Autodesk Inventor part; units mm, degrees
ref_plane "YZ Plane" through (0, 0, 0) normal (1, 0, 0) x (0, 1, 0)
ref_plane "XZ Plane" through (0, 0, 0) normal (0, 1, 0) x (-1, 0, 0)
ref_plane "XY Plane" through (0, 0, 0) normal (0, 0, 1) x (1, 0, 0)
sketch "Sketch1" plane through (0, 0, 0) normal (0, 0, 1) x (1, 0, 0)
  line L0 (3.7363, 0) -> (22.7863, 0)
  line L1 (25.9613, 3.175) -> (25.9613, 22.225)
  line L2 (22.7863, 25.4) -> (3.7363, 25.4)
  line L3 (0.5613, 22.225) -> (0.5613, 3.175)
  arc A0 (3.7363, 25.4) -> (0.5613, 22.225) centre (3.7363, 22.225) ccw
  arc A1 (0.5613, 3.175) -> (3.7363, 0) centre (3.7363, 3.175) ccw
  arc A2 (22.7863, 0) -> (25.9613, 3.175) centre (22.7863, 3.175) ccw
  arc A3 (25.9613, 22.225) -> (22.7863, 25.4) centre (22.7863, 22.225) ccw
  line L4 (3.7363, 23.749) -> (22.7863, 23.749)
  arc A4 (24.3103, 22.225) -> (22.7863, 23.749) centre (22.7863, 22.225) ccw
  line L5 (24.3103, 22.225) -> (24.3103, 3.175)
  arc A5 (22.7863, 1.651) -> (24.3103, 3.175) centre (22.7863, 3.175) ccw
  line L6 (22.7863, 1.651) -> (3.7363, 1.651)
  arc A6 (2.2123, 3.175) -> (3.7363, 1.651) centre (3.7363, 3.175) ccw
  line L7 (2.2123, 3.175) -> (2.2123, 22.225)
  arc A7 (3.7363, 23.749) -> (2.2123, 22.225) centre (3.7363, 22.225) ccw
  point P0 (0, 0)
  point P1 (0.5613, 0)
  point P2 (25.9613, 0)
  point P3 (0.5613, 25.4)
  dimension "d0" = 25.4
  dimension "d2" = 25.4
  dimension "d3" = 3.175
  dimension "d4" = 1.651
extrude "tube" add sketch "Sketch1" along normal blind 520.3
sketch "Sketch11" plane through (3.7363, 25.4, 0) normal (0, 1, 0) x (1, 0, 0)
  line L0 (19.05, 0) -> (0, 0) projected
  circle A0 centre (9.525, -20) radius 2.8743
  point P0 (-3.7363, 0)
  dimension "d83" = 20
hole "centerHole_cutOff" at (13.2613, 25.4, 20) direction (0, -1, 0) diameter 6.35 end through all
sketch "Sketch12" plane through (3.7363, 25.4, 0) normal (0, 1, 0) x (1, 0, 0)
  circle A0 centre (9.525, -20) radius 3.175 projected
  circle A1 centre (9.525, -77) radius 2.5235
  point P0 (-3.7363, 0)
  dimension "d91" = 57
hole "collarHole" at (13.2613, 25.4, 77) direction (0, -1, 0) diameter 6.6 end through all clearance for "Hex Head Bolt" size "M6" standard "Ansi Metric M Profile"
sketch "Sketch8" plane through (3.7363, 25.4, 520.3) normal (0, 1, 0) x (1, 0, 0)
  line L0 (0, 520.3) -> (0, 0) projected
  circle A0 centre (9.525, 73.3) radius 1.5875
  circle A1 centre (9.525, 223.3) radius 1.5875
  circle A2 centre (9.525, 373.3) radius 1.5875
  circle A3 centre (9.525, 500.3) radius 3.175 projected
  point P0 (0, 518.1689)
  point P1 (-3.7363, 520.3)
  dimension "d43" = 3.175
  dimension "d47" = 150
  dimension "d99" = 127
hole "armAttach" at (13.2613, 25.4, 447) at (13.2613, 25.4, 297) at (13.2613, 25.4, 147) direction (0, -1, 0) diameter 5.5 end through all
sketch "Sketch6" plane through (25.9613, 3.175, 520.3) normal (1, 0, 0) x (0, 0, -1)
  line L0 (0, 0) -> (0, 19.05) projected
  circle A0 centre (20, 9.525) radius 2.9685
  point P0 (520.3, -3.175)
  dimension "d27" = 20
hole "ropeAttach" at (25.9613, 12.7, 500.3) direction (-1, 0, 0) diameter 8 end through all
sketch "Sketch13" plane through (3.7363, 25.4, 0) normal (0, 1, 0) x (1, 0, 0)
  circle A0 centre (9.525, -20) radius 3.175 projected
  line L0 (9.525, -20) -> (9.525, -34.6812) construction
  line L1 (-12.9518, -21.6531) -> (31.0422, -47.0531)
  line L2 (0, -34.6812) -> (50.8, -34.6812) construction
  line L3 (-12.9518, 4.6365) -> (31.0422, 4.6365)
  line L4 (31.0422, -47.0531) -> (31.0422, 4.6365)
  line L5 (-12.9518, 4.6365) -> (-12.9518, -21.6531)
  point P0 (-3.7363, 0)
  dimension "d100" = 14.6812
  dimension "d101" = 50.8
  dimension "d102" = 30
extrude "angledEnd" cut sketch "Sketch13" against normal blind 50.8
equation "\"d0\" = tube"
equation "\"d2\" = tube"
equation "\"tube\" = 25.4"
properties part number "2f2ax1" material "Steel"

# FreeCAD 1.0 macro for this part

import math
import FreeCAD as App
import Part
import Sketcher
from FreeCAD import Vector
Q = App.Units.Quantity


def add_polygon(sketch, points):
    """Adds a closed chain of lines whose ends are joined by coincident constraints."""
    first, n = sketch.GeometryCount, len(points)
    for a, b in zip(points, points[1:] + points[:1]):
        sketch.addGeometry(Part.LineSegment(App.Vector(*a, 0), App.Vector(*b, 0)), False)
    for i in range(n):
        sketch.addConstraint(Sketcher.Constraint("Coincident", first + i, 2, first + (i + 1) % n, 1))

doc = App.newDocument("Part")
body = doc.addObject("PartDesign::Body", "Body")

# Sketch on XY plane
sketch1 = body.newObject("Sketcher::SketchObject", "Sketch")
sketch1.AttachmentSupport = (doc.getObject("XY_Plane"), [""])
sketch1.MapMode = "FlatFace"
sketch1.addGeometry(Part.ArcOfCircle(Part.Circle(Vector(3.7, 3.2, 0), Vector(0, 0, 1), 3.2), math.radians(180), math.radians(270)), False)
sketch1.addGeometry(Part.LineSegment(Vector(3.7, 0, 0), Vector(22.8, 0, 0)), False)
sketch1.addGeometry(Part.ArcOfCircle(Part.Circle(Vector(22.8, 3.2, 0), Vector(0, 0, 1), 3.2), math.radians(-90), math.radians(0)), False)
sketch1.addGeometry(Part.LineSegment(Vector(26, 3.2, 0), Vector(26, 22.2, 0)), False)
sketch1.addGeometry(Part.ArcOfCircle(Part.Circle(Vector(22.8, 22.2, 0), Vector(0, 0, 1), 3.2), math.radians(0), math.radians(90)), False)
sketch1.addGeometry(Part.LineSegment(Vector(22.8, 25.4, 0), Vector(3.7, 25.4, 0)), False)
sketch1.addGeometry(Part.ArcOfCircle(Part.Circle(Vector(3.7, 22.2, 0), Vector(0, 0, 1), 3.2), math.radians(90), math.radians(180)), False)
sketch1.addGeometry(Part.LineSegment(Vector(0.6, 22.2, 0), Vector(0.6, 3.2, 0)), False)
sketch1.addGeometry(Part.ArcOfCircle(Part.Circle(Vector(3.7, 22.2, 0), Vector(0, 0, 1), 1.5), math.radians(90), math.radians(180)), False)
sketch1.addGeometry(Part.LineSegment(Vector(3.7, 23.7, 0), Vector(22.8, 23.7, 0)), False)
sketch1.addGeometry(Part.ArcOfCircle(Part.Circle(Vector(22.8, 22.2, 0), Vector(0, 0, 1), 1.5), math.radians(0), math.radians(90)), False)
sketch1.addGeometry(Part.LineSegment(Vector(24.3, 22.2, 0), Vector(24.3, 3.2, 0)), False)
sketch1.addGeometry(Part.ArcOfCircle(Part.Circle(Vector(22.8, 3.2, 0), Vector(0, 0, 1), 1.5), math.radians(-90), math.radians(0)), False)
sketch1.addGeometry(Part.LineSegment(Vector(22.8, 1.7, 0), Vector(3.7, 1.7, 0)), False)
sketch1.addGeometry(Part.ArcOfCircle(Part.Circle(Vector(3.7, 3.2, 0), Vector(0, 0, 1), 1.5), math.radians(180), math.radians(270)), False)
sketch1.addGeometry(Part.LineSegment(Vector(2.2, 3.2, 0), Vector(2.2, 22.2, 0)), False)
sketch1.addConstraint(Sketcher.Constraint("Tangent", 0, 2, 1, 1))
sketch1.addConstraint(Sketcher.Constraint("Tangent", 1, 2, 2, 1))
sketch1.addConstraint(Sketcher.Constraint("Tangent", 2, 2, 3, 1))
sketch1.addConstraint(Sketcher.Constraint("Tangent", 3, 2, 4, 1))
sketch1.addConstraint(Sketcher.Constraint("Tangent", 4, 2, 5, 1))
sketch1.addConstraint(Sketcher.Constraint("Tangent", 5, 2, 6, 1))
sketch1.addConstraint(Sketcher.Constraint("Tangent", 6, 2, 7, 1))
sketch1.addConstraint(Sketcher.Constraint("Tangent", 7, 2, 0, 1))
sketch1.addConstraint(Sketcher.Constraint("Tangent", 8, 1, 9, 1))
sketch1.addConstraint(Sketcher.Constraint("Tangent", 9, 2, 10, 2))
sketch1.addConstraint(Sketcher.Constraint("Tangent", 10, 1, 11, 1))
sketch1.addConstraint(Sketcher.Constraint("Tangent", 11, 2, 12, 2))
sketch1.addConstraint(Sketcher.Constraint("Tangent", 12, 1, 13, 1))
sketch1.addConstraint(Sketcher.Constraint("Tangent", 13, 2, 14, 2))
sketch1.addConstraint(Sketcher.Constraint("Tangent", 14, 1, 15, 1))
sketch1.addConstraint(Sketcher.Constraint("Tangent", 15, 2, 8, 2))
sketch1.addConstraint(Sketcher.Constraint("Horizontal", 1))
sketch1.addConstraint(Sketcher.Constraint("Vertical", 3))
sketch1.addConstraint(Sketcher.Constraint("Horizontal", 5))
sketch1.addConstraint(Sketcher.Constraint("Vertical", 7))
sketch1.addConstraint(Sketcher.Constraint("Horizontal", 9))
sketch1.addConstraint(Sketcher.Constraint("Vertical", 11))
sketch1.addConstraint(Sketcher.Constraint("Horizontal", 13))
sketch1.addConstraint(Sketcher.Constraint("Vertical", 15))
sketch1.addConstraint(Sketcher.Constraint("Coincident", 8, 3, 6, 3))
sketch1.addConstraint(Sketcher.Constraint("Coincident", 10, 3, 4, 3))
sketch1.addConstraint(Sketcher.Constraint("Coincident", 12, 3, 2, 3))
sketch1.addConstraint(Sketcher.Constraint("Equal", 0, 2))
sketch1.addConstraint(Sketcher.Constraint("Equal", 2, 4))
sketch1.addConstraint(Sketcher.Constraint("Equal", 4, 6))
sketch1.addConstraint(Sketcher.Constraint("Equal", 12, 14))
sketch1.addConstraint(Sketcher.Constraint("PointOnObject", 0, 2, -1))
sketch1.addConstraint(Sketcher.Constraint("Equal", 13, 3))
sketch1.addConstraint(Sketcher.Constraint("DistanceY", -1, 1, 4, 2, Q("1 in")))
sketch1.addConstraint(Sketcher.Constraint("Radius", 0, Q("0.125 in")))
sketch1.addConstraint(Sketcher.Constraint("Radius", 8, Q("0.06 in")))
sketch1.addConstraint(Sketcher.Constraint("DistanceX", -1, 1, 0, 3, Q("0.1471 in")))
pad1 = body.newObject("PartDesign::Pad", "Pad")
pad1.Profile = sketch1
pad1.Length = 520.3

# Sketch on XZ plane
sketch2 = body.newObject("Sketcher::SketchObject", "Sketch001")
sketch2.AttachmentSupport = (doc.getObject("XZ_Plane"), [""])
sketch2.MapMode = "FlatFace"
sketch2.AttachmentOffset = App.Placement(Vector(0, 0, -1 * 25.4), App.Rotation())
sketch2.addGeometry(Part.Circle(Vector(13.3, 20, 0), Vector(0, 0, 1), 3.2), False)
sketch2.addConstraint(Sketcher.Constraint("Diameter", 0, Q("0.25 in")))
sketch2.addConstraint(Sketcher.Constraint("DistanceX", -1, 1, 0, 3, Q("0.5221 in")))
sketch2.addConstraint(Sketcher.Constraint("DistanceY", -1, 1, 0, 3, Q("0.7874 in")))
doc.recompute()
hole = body.newObject("PartDesign::Hole", "Hole")
hole.Profile = sketch2
hole.ThreadType = "None"
hole.Diameter = Q("0.25 in")
hole.DepthType = "ThroughAll"
hole.Reversed = True

# Sketch on XZ plane
sketch3 = body.newObject("Sketcher::SketchObject", "Sketch002")
sketch3.AttachmentSupport = (doc.getObject("XZ_Plane"), [""])
sketch3.MapMode = "FlatFace"
sketch3.AttachmentOffset = App.Placement(Vector(0, 0, -1 * 25.4), App.Rotation())
sketch3.addGeometry(Part.Circle(Vector(13.3, 77, 0), Vector(0, 0, 1), 3.3), False)
sketch3.addConstraint(Sketcher.Constraint("Diameter", 0, 6.6))
sketch3.addConstraint(Sketcher.Constraint("DistanceX", -1, 1, 0, 3, Q("0.5221 in")))
sketch3.addConstraint(Sketcher.Constraint("DistanceY", -1, 1, 0, 3, Q("3.0315 in")))
doc.recompute()
hole2 = body.newObject("PartDesign::Hole", "Hole001")
hole2.Profile = sketch3
hole2.ThreadType = "None"
hole2.Diameter = 6.6
hole2.DepthType = "ThroughAll"
hole2.Reversed = True

# Sketch on XZ plane
sketch4 = body.newObject("Sketcher::SketchObject", "Sketch003")
sketch4.AttachmentSupport = (doc.getObject("XZ_Plane"), [""])
sketch4.MapMode = "FlatFace"
sketch4.AttachmentOffset = App.Placement(Vector(0, 0, -1 * 25.4), App.Rotation())
sketch4.addGeometry(Part.Circle(Vector(13.3, 447, 0), Vector(0, 0, 1), 2.8), False)
sketch4.addGeometry(Part.Circle(Vector(13.3, 297, 0), Vector(0, 0, 1), 2.8), False)
sketch4.addGeometry(Part.Circle(Vector(13.3, 147, 0), Vector(0, 0, 1), 2.8), False)
sketch4.addConstraint(Sketcher.Constraint("Equal", 0, 1))
sketch4.addConstraint(Sketcher.Constraint("Equal", 1, 2))
sketch4.addConstraint(Sketcher.Constraint("Vertical", 0, 3, 1, 3))
sketch4.addConstraint(Sketcher.Constraint("Vertical", 1, 3, 2, 3))
sketch4.addConstraint(Sketcher.Constraint("Diameter", 0, 5.5))
sketch4.addConstraint(Sketcher.Constraint("DistanceX", -1, 1, 0, 3, Q("0.5221 in")))
sketch4.addConstraint(Sketcher.Constraint("DistanceY", -1, 1, 2, 3, Q("5.7874 in")))
sketch4.addConstraint(Sketcher.Constraint("DistanceY", 1, 3, 0, 3, Q("5.9055 in")))
sketch4.addConstraint(Sketcher.Constraint("DistanceY", 2, 3, 1, 3, Q("5.9055 in")))
doc.recompute()
hole3 = body.newObject("PartDesign::Hole", "Hole002")
hole3.Profile = sketch4
hole3.ThreadType = "None"
hole3.Diameter = 5.5
hole3.DepthType = "ThroughAll"
hole3.Reversed = True

# Sketch on YZ plane
sketch5 = body.newObject("Sketcher::SketchObject", "Sketch004")
sketch5.AttachmentSupport = (doc.getObject("YZ_Plane"), [""])
sketch5.MapMode = "FlatFace"
sketch5.AttachmentOffset = App.Placement(Vector(0, 0, 1.0220984 * 25.4), App.Rotation())
sketch5.addGeometry(Part.Circle(Vector(12.7, 500.3, 0), Vector(0, 0, 1), 4), False)
sketch5.addConstraint(Sketcher.Constraint("DistanceX", -1, 1, 0, 3, Q("0.5 in")))
sketch5.addConstraint(Sketcher.Constraint("Diameter", 0, 8.0))
sketch5.addConstraint(Sketcher.Constraint("DistanceY", -1, 1, 0, 3, 500.3))
doc.recompute()
hole4 = body.newObject("PartDesign::Hole", "Hole003")
hole4.Profile = sketch5
hole4.ThreadType = "None"
hole4.Diameter = 8
hole4.DepthType = "ThroughAll"

# Sketch on XZ plane
sketch6 = body.newObject("Sketcher::SketchObject", "Sketch005")
sketch6.AttachmentSupport = (doc.getObject("XZ_Plane"), [""])
sketch6.MapMode = "FlatFace"
sketch6.AttachmentOffset = App.Placement(Vector(0, 0, -1 * 25.4), App.Rotation())
add_polygon(sketch6, [(-9.2, -4.6), (-9.2, 21.7), (34.8, 47.1), (34.8, -4.6)])  # lines 0-3
sketch6.addGeometry(Part.Circle(Vector(13.3, 20, 0), Vector(0, 0, 1), 3.2), False)  # 4
sketch6.addConstraint(Sketcher.Constraint("Vertical", 0))
sketch6.addConstraint(Sketcher.Constraint("Vertical", 2))
sketch6.addConstraint(Sketcher.Constraint("Horizontal", 3))
sketch6.addConstraint(Sketcher.Constraint("Distance", 1, Q("2 in")))
sketch6.addConstraint(Sketcher.Constraint("Angle", 1, Q("30 deg")))
sketch6.addConstraint(Sketcher.Constraint("Diameter", 4, Q("0.25 in")))
sketch6.addConstraint(Sketcher.Constraint("DistanceY", 0, 1, 0, 2, 26.2896))
sketch6.addConstraint(Sketcher.Constraint("DistanceX", -1, 1, 4, 3, Q("0.5221 in")))
sketch6.addConstraint(Sketcher.Constraint("DistanceY", -1, 1, 4, 3, Q("0.7874 in")))
sketch6.addConstraint(Sketcher.Constraint("DistanceX", 0, 2, -1, 1, 9.2155))
sketch6.addConstraint(Sketcher.Constraint("DistanceY", -1, 1, 0, 2, 21.653))
pocket1 = body.newObject("PartDesign::Pocket", "Pocket")
pocket1.Profile = sketch6
pocket1.Length = Q("2 in")
pocket1.Reversed = True

doc.recompute()
